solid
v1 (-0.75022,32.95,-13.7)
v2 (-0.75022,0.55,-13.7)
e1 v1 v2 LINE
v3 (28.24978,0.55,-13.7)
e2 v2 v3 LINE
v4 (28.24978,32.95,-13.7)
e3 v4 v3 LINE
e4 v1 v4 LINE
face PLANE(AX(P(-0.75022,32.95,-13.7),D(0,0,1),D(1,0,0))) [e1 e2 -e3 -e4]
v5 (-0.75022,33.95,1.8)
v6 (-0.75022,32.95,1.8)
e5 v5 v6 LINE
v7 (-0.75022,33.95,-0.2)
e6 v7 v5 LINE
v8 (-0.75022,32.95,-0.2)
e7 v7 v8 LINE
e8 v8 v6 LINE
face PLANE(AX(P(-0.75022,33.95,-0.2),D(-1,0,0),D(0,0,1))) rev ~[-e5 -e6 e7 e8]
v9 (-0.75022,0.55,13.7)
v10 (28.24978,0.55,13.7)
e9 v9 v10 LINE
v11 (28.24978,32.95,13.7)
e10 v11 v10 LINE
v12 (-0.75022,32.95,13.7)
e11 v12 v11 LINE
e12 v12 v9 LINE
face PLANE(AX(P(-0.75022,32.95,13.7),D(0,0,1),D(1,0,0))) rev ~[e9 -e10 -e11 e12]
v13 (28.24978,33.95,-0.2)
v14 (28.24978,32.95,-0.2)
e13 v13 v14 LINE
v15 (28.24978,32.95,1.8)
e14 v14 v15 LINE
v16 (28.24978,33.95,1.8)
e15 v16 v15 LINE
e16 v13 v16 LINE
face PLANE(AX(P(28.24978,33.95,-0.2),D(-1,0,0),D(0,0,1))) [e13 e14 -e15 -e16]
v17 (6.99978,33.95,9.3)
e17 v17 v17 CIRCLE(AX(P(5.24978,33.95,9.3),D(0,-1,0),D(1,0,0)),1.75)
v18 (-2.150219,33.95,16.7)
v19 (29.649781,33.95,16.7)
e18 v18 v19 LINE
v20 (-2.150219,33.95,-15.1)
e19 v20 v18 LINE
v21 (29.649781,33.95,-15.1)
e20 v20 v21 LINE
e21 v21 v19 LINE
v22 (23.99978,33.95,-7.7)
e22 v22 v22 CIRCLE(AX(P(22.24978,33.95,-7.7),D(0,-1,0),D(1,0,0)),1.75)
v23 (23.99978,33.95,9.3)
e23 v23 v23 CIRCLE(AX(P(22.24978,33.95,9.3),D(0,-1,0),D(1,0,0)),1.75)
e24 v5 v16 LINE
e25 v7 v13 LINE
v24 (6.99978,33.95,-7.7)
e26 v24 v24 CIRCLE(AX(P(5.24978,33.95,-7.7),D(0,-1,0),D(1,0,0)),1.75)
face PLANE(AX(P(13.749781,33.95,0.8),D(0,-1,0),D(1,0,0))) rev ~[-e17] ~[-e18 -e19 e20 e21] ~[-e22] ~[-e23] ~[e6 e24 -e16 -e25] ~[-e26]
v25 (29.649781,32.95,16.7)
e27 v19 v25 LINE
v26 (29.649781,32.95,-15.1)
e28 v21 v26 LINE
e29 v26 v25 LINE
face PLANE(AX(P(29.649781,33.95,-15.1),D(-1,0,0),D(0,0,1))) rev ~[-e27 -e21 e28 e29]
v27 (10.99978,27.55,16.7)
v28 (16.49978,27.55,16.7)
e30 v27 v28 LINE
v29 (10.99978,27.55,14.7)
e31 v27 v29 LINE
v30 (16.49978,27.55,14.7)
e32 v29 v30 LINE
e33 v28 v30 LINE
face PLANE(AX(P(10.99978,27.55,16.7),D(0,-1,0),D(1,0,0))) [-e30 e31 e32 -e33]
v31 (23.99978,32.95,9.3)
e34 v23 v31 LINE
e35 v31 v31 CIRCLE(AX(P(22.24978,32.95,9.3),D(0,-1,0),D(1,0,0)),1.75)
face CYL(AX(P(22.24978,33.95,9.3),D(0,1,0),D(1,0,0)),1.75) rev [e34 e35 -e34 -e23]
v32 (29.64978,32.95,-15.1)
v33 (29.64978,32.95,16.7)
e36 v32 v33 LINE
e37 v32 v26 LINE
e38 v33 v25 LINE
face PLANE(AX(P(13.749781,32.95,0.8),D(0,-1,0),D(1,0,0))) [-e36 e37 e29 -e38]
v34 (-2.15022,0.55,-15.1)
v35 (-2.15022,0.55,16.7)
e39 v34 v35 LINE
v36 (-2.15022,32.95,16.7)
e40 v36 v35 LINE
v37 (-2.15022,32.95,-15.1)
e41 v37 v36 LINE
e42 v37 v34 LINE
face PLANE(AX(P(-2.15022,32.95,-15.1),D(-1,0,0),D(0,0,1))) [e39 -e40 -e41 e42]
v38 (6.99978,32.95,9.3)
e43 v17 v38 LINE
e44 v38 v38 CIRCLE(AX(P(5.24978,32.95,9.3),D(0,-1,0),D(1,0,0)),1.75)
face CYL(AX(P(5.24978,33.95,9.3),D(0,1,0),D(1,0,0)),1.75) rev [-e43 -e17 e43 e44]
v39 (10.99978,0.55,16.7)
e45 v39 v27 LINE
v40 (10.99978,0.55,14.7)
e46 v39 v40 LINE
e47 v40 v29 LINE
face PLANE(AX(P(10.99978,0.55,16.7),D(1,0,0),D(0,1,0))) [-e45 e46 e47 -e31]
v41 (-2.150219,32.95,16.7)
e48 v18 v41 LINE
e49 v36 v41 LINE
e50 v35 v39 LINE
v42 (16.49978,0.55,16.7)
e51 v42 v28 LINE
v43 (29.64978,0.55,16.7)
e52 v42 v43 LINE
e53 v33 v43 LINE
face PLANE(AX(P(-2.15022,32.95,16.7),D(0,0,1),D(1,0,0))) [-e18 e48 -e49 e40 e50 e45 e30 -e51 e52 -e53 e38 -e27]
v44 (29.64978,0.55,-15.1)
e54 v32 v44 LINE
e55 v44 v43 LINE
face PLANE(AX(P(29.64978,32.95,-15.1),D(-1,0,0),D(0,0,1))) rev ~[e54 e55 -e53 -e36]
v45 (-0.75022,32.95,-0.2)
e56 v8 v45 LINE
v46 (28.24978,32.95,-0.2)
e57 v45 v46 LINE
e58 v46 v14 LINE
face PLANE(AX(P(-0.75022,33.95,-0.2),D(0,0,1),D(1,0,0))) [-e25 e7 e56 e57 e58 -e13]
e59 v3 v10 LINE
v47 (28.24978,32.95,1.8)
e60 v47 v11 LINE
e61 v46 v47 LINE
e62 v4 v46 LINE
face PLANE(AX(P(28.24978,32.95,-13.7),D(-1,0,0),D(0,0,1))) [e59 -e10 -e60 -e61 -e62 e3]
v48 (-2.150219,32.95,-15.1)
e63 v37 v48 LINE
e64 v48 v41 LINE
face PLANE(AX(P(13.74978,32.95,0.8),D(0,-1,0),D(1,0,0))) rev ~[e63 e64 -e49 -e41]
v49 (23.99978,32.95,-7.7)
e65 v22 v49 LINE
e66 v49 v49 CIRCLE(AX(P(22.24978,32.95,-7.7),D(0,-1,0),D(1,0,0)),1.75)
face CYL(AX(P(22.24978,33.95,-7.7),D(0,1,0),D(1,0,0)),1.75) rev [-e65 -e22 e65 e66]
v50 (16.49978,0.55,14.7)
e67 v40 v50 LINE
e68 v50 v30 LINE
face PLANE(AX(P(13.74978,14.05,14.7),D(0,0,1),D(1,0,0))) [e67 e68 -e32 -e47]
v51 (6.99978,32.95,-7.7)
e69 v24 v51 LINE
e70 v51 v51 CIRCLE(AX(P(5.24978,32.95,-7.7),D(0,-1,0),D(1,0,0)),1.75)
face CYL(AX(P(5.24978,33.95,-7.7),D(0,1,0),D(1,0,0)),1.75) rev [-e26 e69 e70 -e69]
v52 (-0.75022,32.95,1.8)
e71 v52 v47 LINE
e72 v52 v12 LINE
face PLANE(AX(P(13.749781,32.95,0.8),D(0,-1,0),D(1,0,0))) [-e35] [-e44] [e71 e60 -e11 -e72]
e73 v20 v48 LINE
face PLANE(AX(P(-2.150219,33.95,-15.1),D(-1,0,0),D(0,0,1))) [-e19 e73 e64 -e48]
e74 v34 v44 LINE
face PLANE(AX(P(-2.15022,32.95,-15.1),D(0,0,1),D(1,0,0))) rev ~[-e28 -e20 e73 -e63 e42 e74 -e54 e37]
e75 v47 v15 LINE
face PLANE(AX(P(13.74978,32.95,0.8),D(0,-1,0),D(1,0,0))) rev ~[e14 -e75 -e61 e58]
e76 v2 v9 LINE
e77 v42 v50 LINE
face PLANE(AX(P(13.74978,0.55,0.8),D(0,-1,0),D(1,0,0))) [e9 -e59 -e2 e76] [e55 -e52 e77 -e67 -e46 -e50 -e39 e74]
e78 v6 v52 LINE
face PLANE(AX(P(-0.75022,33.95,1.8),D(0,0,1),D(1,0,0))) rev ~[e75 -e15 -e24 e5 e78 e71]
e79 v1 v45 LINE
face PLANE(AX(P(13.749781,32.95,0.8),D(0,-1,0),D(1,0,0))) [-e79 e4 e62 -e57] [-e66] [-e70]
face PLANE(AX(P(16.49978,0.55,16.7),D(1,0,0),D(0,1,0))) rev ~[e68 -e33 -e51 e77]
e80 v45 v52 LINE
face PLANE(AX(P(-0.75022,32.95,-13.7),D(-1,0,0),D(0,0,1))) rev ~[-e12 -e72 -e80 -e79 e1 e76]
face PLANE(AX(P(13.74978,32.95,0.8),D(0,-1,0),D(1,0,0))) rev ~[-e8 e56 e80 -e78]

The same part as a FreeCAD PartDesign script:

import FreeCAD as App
import Part
import Sketcher
from FreeCAD import Vector
Q = App.Units.Quantity


def add_polygon(sketch, points):
    """Adds a closed chain of lines whose ends are joined by coincident constraints."""
    first, n = sketch.GeometryCount, len(points)
    for a, b in zip(points, points[1:] + points[:1]):
        sketch.addGeometry(Part.LineSegment(App.Vector(*a, 0), App.Vector(*b, 0)), False)
    for i in range(n):
        sketch.addConstraint(Sketcher.Constraint("Coincident", first + i, 2, first + (i + 1) % n, 1))

doc = App.newDocument("Part")
body = doc.addObject("PartDesign::Body", "Body")

sketch1 = body.newObject("Sketcher::SketchObject", "Sketch")
sketch1.AttachmentSupport = (doc.getObject("XZ_Plane"), [""])
sketch1.MapMode = "FlatFace"
sketch1.AttachmentOffset = App.Placement(Vector(0, 0, -33.95), App.Rotation())
add_polygon(sketch1, [(-2.2, 16.7), (-2.2, -15.1), (29.6, -15.1), (29.6, 16.7)])
sketch1.addGeometry(Part.Circle(Vector(5.2, -7.7, 0), Vector(0, 0, 1), 1.8), False)
sketch1.addGeometry(Part.Circle(Vector(22.2, -7.7, 0), Vector(0, 0, 1), 1.8), False)
sketch1.addGeometry(Part.Circle(Vector(5.2, 9.3, 0), Vector(0, 0, 1), 1.8), False)
add_polygon(sketch1, [(28.2, -0.2), (-0.8, -0.2), (-0.8, 1.8), (28.2, 1.8)])
sketch1.addGeometry(Part.Circle(Vector(22.2, 9.3, 0), Vector(0, 0, 1), 1.8), False)
sketch1.addConstraint([
    Sketcher.Constraint("Vertical", 0),
    Sketcher.Constraint("Horizontal", 1),
    Sketcher.Constraint("Vertical", 2),
    Sketcher.Constraint("Horizontal", 3),
    Sketcher.Constraint("Horizontal", 7),
    Sketcher.Constraint("Vertical", 8),
    Sketcher.Constraint("Horizontal", 9),
    Sketcher.Constraint("Vertical", 10),
    Sketcher.Constraint("Equal", 4, 5),
    Sketcher.Constraint("Equal", 5, 6),
    Sketcher.Constraint("Equal", 6, 11),
    Sketcher.Constraint("Horizontal", 4, 3, 5, 3),
    Sketcher.Constraint("Horizontal", 6, 3, 11, 3),
    Sketcher.Constraint("Vertical", 4, 3, 6, 3),
    Sketcher.Constraint("Vertical", 5, 3, 11, 3),
    Sketcher.Constraint("Equal", 3, 0),
    Sketcher.Constraint("Diameter", 4, Q("3.5 mm")),
    Sketcher.Constraint("DistanceX", 7, 2, 7, 1, Q("29.000001 mm")),
    Sketcher.Constraint("DistanceY", 8, 1, 8, 2, Q("2 mm")),
    Sketcher.Constraint("DistanceX", 1, 1, 1, 2, Q("31.8 mm")),
    Sketcher.Constraint("DistanceX", 4, 3, 5, 3, Q("17 mm")),
    Sketcher.Constraint("DistanceY", 4, 3, 6, 3, Q("17 mm")),
    Sketcher.Constraint("DistanceX", 7, 2, 4, 3, Q("6.000001 mm")),
    Sketcher.Constraint("DistanceY", 4, 3, -1, 1, Q("7.7 mm")),
    Sketcher.Constraint("DistanceY", 0, 2, -1, 1, Q("15.1 mm")),
    Sketcher.Constraint("DistanceY", 7, 2, -1, 1, Q("0.2 mm")),
    Sketcher.Constraint("DistanceX", 0, 2, 4, 3, Q("7.399999 mm")),
    Sketcher.Constraint("DistanceX", -1, 1, 4, 3, Q("5.24978 mm")),
])
pad1 = body.newObject("PartDesign::Pad", "Pad")
pad1.Profile = sketch1
pad1.Length = 1

sketch2 = body.newObject("Sketcher::SketchObject", "Sketch001")
sketch2.AttachmentSupport = (doc.getObject("XZ_Plane"), [""])
sketch2.MapMode = "FlatFace"
sketch2.AttachmentOffset = App.Placement(Vector(0, 0, -32.95), App.Rotation())
add_polygon(sketch2, [(-2, 17), (-2, -15), (30, -15), (30, 17)])
add_polygon(sketch2, [(28, -14), (-1, -14), (-1, 14), (28, 14)])
sketch2.addConstraint([
    Sketcher.Constraint("Vertical", 0),
    Sketcher.Constraint("Horizontal", 1),
    Sketcher.Constraint("Vertical", 2),
    Sketcher.Constraint("Horizontal", 3),
    Sketcher.Constraint("Horizontal", 4),
    Sketcher.Constraint("Vertical", 5),
    Sketcher.Constraint("Horizontal", 6),
    Sketcher.Constraint("Vertical", 7),
    Sketcher.Constraint("Equal", 3, 0),
    Sketcher.Constraint("DistanceX", 4, 2, 4, 1, Q("29 mm")),
    Sketcher.Constraint("DistanceX", 1, 1, 1, 2, Q("31.8 mm")),
    Sketcher.Constraint("DistanceY", 5, 1, 5, 2, Q("27.4 mm")),
    Sketcher.Constraint("DistanceY", 5, 2, 3, 2, Q("3 mm")),
    Sketcher.Constraint("DistanceY", 0, 2, -1, 1, Q("15.1 mm")),
    Sketcher.Constraint("DistanceX", 0, 2, 4, 2, Q("1.4 mm")),
    Sketcher.Constraint("DistanceX", 0, 2, -1, 1, Q("2.15022 mm")),
])
pad2 = body.newObject("PartDesign::Pad", "Pad001")
pad2.Profile = sketch2
pad2.Length = 32.4

sketch3 = body.newObject("Sketcher::SketchObject", "Sketch002")
sketch3.AttachmentSupport = (doc.getObject("XY_Plane"), [""])
sketch3.MapMode = "FlatFace"
sketch3.AttachmentOffset = App.Placement(Vector(0, 0, 16.7), App.Rotation())
add_polygon(sketch3, [(11, 28), (11, 1), (16, 1), (16, 28)])
sketch3.addConstraint([
    Sketcher.Constraint("Vertical", 0),
    Sketcher.Constraint("Horizontal", 1),
    Sketcher.Constraint("Vertical", 2),
    Sketcher.Constraint("Horizontal", 3),
    Sketcher.Constraint("DistanceY", 0, 2, 0, 1, Q("27 mm")),
    Sketcher.Constraint("DistanceX", 1, 1, 1, 2, Q("5.5 mm")),
    Sketcher.Constraint("DistanceY", -1, 1, 0, 2, Q("0.55 mm")),
    Sketcher.Constraint("DistanceX", -1, 1, 0, 2, Q("10.99978 mm")),
])
pocket1 = body.newObject("PartDesign::Pocket", "Pocket")
pocket1.Profile = sketch3
pocket1.Length = 2

doc.recompute()
